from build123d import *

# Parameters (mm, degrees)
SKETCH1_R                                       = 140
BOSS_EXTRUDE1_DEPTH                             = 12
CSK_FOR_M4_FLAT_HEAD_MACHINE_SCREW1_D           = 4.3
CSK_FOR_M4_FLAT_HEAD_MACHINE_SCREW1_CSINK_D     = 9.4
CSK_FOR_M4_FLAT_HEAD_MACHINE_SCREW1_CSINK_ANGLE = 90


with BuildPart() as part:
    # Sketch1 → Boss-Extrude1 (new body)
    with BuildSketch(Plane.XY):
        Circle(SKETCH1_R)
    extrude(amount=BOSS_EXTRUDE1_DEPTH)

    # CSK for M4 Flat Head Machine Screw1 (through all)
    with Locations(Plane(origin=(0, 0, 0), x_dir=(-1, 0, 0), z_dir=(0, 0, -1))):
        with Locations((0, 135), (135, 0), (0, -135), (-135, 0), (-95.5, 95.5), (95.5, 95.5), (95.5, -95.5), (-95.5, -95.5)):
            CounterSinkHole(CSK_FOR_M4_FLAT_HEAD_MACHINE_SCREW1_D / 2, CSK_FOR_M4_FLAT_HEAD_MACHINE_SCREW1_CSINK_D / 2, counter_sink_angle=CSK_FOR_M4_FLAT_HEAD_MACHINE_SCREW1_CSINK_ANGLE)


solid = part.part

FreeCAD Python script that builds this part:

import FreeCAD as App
import Part
import Sketcher
from FreeCAD import Vector
Q = App.Units.Quantity

doc = App.newDocument("Part")
params = doc.addObject("Spreadsheet::Sheet", "Params")
for row, (alias, value) in enumerate([
    ("sketch1_diameter", "280 mm"),
    ("pad1_length", "12 mm"),
    ("sketch2_diameter", "4.3 mm"),
    ("hole_diameter", "4.3 mm"),
    ("hole_csink_diameter", "9.4 mm"),
], start=1):
    params.set(f"A{row}", alias)
    params.set(f"B{row}", "=" + value)
    params.setAlias(f"B{row}", alias)

body = doc.addObject("PartDesign::Body", "Body")

sketch1 = body.newObject("Sketcher::SketchObject", "Sketch")
sketch1.AttachmentSupport = (doc.getObject("XY_Plane"), [""])
sketch1.MapMode = "FlatFace"
sketch1.addGeometry(Part.Circle(Vector(0, 0, 0), Vector(0, 0, 1), 140), False)
sketch1.addConstraint([
    Sketcher.Constraint("Coincident", 0, 3, -1, 1),
    Sketcher.Constraint("Diameter", 0, Q("280 mm")),
])
sketch1.setExpression("Constraints[1]", "Params.sketch1_diameter")
pad1 = body.newObject("PartDesign::Pad", "Pad")
pad1.Profile = sketch1
pad1.setExpression("Length", "Params.pad1_length")

sketch2 = body.newObject("Sketcher::SketchObject", "Sketch001")
sketch2.AttachmentSupport = (doc.getObject("XY_Plane"), [""])
sketch2.MapMode = "FlatFace"
sketch2.addGeometry([
    Part.Circle(Vector(0, 135, 0), Vector(0, 0, 1), 2.1),
    Part.Circle(Vector(-135, 0, 0), Vector(0, 0, 1), 2.1),
    Part.Circle(Vector(0, -135, 0), Vector(0, 0, 1), 2.1),
    Part.Circle(Vector(135, 0, 0), Vector(0, 0, 1), 2.1),
    Part.Circle(Vector(95.5, 95.5, 0), Vector(0, 0, 1), 2.1),
    Part.Circle(Vector(-95.5, 95.5, 0), Vector(0, 0, 1), 2.1),
    Part.Circle(Vector(-95.5, -95.5, 0), Vector(0, 0, 1), 2.1),
    Part.Circle(Vector(95.5, -95.5, 0), Vector(0, 0, 1), 2.1),
], False)
sketch2.addConstraint([
    Sketcher.Constraint("Equal", 0, 1),
    Sketcher.Constraint("Equal", 1, 2),
    Sketcher.Constraint("Equal", 2, 3),
    Sketcher.Constraint("Equal", 3, 4),
    Sketcher.Constraint("Equal", 4, 5),
    Sketcher.Constraint("Equal", 5, 6),
    Sketcher.Constraint("Equal", 6, 7),
    Sketcher.Constraint("Symmetric", 0, 3, 2, 3, -1, 1),
    Sketcher.Constraint("Symmetric", 1, 3, 3, 3, -1, 1),
    Sketcher.Constraint("Symmetric", 4, 3, 6, 3, -1, 1),
    Sketcher.Constraint("Symmetric", 5, 3, 7, 3, -1, 1),
    Sketcher.Constraint("Symmetric", 4, 3, 5, 3, -2),
    Sketcher.Constraint("PointOnObject", 0, 3, -2),
    Sketcher.Constraint("PointOnObject", 1, 3, -1),
    Sketcher.Constraint("Diameter", 0, Q("4.3 mm")),
    Sketcher.Constraint("DistanceY", -1, 1, 0, 3, Q("135 mm")),
    Sketcher.Constraint("DistanceX", 1, 3, -1, 1, Q("135 mm")),
    Sketcher.Constraint("DistanceX", 5, 3, 4, 3, Q("191 mm")),
    Sketcher.Constraint("DistanceY", 6, 3, 5, 3, Q("191 mm")),
])
sketch2.setExpression("Constraints[14]", "Params.sketch2_diameter")
doc.recompute()
hole = body.newObject("PartDesign::Hole", "Hole")
hole.Profile = sketch2
hole.ThreadType = "None"
hole.setExpression("Diameter", "Params.hole_diameter")
hole.DepthType = "ThroughAll"
hole.HoleCutType = "Countersink"
hole.setExpression("HoleCutDiameter", "Params.hole_csink_diameter")
hole.HoleCutCountersinkAngle = 90
hole.Reversed = True

doc.recompute()
